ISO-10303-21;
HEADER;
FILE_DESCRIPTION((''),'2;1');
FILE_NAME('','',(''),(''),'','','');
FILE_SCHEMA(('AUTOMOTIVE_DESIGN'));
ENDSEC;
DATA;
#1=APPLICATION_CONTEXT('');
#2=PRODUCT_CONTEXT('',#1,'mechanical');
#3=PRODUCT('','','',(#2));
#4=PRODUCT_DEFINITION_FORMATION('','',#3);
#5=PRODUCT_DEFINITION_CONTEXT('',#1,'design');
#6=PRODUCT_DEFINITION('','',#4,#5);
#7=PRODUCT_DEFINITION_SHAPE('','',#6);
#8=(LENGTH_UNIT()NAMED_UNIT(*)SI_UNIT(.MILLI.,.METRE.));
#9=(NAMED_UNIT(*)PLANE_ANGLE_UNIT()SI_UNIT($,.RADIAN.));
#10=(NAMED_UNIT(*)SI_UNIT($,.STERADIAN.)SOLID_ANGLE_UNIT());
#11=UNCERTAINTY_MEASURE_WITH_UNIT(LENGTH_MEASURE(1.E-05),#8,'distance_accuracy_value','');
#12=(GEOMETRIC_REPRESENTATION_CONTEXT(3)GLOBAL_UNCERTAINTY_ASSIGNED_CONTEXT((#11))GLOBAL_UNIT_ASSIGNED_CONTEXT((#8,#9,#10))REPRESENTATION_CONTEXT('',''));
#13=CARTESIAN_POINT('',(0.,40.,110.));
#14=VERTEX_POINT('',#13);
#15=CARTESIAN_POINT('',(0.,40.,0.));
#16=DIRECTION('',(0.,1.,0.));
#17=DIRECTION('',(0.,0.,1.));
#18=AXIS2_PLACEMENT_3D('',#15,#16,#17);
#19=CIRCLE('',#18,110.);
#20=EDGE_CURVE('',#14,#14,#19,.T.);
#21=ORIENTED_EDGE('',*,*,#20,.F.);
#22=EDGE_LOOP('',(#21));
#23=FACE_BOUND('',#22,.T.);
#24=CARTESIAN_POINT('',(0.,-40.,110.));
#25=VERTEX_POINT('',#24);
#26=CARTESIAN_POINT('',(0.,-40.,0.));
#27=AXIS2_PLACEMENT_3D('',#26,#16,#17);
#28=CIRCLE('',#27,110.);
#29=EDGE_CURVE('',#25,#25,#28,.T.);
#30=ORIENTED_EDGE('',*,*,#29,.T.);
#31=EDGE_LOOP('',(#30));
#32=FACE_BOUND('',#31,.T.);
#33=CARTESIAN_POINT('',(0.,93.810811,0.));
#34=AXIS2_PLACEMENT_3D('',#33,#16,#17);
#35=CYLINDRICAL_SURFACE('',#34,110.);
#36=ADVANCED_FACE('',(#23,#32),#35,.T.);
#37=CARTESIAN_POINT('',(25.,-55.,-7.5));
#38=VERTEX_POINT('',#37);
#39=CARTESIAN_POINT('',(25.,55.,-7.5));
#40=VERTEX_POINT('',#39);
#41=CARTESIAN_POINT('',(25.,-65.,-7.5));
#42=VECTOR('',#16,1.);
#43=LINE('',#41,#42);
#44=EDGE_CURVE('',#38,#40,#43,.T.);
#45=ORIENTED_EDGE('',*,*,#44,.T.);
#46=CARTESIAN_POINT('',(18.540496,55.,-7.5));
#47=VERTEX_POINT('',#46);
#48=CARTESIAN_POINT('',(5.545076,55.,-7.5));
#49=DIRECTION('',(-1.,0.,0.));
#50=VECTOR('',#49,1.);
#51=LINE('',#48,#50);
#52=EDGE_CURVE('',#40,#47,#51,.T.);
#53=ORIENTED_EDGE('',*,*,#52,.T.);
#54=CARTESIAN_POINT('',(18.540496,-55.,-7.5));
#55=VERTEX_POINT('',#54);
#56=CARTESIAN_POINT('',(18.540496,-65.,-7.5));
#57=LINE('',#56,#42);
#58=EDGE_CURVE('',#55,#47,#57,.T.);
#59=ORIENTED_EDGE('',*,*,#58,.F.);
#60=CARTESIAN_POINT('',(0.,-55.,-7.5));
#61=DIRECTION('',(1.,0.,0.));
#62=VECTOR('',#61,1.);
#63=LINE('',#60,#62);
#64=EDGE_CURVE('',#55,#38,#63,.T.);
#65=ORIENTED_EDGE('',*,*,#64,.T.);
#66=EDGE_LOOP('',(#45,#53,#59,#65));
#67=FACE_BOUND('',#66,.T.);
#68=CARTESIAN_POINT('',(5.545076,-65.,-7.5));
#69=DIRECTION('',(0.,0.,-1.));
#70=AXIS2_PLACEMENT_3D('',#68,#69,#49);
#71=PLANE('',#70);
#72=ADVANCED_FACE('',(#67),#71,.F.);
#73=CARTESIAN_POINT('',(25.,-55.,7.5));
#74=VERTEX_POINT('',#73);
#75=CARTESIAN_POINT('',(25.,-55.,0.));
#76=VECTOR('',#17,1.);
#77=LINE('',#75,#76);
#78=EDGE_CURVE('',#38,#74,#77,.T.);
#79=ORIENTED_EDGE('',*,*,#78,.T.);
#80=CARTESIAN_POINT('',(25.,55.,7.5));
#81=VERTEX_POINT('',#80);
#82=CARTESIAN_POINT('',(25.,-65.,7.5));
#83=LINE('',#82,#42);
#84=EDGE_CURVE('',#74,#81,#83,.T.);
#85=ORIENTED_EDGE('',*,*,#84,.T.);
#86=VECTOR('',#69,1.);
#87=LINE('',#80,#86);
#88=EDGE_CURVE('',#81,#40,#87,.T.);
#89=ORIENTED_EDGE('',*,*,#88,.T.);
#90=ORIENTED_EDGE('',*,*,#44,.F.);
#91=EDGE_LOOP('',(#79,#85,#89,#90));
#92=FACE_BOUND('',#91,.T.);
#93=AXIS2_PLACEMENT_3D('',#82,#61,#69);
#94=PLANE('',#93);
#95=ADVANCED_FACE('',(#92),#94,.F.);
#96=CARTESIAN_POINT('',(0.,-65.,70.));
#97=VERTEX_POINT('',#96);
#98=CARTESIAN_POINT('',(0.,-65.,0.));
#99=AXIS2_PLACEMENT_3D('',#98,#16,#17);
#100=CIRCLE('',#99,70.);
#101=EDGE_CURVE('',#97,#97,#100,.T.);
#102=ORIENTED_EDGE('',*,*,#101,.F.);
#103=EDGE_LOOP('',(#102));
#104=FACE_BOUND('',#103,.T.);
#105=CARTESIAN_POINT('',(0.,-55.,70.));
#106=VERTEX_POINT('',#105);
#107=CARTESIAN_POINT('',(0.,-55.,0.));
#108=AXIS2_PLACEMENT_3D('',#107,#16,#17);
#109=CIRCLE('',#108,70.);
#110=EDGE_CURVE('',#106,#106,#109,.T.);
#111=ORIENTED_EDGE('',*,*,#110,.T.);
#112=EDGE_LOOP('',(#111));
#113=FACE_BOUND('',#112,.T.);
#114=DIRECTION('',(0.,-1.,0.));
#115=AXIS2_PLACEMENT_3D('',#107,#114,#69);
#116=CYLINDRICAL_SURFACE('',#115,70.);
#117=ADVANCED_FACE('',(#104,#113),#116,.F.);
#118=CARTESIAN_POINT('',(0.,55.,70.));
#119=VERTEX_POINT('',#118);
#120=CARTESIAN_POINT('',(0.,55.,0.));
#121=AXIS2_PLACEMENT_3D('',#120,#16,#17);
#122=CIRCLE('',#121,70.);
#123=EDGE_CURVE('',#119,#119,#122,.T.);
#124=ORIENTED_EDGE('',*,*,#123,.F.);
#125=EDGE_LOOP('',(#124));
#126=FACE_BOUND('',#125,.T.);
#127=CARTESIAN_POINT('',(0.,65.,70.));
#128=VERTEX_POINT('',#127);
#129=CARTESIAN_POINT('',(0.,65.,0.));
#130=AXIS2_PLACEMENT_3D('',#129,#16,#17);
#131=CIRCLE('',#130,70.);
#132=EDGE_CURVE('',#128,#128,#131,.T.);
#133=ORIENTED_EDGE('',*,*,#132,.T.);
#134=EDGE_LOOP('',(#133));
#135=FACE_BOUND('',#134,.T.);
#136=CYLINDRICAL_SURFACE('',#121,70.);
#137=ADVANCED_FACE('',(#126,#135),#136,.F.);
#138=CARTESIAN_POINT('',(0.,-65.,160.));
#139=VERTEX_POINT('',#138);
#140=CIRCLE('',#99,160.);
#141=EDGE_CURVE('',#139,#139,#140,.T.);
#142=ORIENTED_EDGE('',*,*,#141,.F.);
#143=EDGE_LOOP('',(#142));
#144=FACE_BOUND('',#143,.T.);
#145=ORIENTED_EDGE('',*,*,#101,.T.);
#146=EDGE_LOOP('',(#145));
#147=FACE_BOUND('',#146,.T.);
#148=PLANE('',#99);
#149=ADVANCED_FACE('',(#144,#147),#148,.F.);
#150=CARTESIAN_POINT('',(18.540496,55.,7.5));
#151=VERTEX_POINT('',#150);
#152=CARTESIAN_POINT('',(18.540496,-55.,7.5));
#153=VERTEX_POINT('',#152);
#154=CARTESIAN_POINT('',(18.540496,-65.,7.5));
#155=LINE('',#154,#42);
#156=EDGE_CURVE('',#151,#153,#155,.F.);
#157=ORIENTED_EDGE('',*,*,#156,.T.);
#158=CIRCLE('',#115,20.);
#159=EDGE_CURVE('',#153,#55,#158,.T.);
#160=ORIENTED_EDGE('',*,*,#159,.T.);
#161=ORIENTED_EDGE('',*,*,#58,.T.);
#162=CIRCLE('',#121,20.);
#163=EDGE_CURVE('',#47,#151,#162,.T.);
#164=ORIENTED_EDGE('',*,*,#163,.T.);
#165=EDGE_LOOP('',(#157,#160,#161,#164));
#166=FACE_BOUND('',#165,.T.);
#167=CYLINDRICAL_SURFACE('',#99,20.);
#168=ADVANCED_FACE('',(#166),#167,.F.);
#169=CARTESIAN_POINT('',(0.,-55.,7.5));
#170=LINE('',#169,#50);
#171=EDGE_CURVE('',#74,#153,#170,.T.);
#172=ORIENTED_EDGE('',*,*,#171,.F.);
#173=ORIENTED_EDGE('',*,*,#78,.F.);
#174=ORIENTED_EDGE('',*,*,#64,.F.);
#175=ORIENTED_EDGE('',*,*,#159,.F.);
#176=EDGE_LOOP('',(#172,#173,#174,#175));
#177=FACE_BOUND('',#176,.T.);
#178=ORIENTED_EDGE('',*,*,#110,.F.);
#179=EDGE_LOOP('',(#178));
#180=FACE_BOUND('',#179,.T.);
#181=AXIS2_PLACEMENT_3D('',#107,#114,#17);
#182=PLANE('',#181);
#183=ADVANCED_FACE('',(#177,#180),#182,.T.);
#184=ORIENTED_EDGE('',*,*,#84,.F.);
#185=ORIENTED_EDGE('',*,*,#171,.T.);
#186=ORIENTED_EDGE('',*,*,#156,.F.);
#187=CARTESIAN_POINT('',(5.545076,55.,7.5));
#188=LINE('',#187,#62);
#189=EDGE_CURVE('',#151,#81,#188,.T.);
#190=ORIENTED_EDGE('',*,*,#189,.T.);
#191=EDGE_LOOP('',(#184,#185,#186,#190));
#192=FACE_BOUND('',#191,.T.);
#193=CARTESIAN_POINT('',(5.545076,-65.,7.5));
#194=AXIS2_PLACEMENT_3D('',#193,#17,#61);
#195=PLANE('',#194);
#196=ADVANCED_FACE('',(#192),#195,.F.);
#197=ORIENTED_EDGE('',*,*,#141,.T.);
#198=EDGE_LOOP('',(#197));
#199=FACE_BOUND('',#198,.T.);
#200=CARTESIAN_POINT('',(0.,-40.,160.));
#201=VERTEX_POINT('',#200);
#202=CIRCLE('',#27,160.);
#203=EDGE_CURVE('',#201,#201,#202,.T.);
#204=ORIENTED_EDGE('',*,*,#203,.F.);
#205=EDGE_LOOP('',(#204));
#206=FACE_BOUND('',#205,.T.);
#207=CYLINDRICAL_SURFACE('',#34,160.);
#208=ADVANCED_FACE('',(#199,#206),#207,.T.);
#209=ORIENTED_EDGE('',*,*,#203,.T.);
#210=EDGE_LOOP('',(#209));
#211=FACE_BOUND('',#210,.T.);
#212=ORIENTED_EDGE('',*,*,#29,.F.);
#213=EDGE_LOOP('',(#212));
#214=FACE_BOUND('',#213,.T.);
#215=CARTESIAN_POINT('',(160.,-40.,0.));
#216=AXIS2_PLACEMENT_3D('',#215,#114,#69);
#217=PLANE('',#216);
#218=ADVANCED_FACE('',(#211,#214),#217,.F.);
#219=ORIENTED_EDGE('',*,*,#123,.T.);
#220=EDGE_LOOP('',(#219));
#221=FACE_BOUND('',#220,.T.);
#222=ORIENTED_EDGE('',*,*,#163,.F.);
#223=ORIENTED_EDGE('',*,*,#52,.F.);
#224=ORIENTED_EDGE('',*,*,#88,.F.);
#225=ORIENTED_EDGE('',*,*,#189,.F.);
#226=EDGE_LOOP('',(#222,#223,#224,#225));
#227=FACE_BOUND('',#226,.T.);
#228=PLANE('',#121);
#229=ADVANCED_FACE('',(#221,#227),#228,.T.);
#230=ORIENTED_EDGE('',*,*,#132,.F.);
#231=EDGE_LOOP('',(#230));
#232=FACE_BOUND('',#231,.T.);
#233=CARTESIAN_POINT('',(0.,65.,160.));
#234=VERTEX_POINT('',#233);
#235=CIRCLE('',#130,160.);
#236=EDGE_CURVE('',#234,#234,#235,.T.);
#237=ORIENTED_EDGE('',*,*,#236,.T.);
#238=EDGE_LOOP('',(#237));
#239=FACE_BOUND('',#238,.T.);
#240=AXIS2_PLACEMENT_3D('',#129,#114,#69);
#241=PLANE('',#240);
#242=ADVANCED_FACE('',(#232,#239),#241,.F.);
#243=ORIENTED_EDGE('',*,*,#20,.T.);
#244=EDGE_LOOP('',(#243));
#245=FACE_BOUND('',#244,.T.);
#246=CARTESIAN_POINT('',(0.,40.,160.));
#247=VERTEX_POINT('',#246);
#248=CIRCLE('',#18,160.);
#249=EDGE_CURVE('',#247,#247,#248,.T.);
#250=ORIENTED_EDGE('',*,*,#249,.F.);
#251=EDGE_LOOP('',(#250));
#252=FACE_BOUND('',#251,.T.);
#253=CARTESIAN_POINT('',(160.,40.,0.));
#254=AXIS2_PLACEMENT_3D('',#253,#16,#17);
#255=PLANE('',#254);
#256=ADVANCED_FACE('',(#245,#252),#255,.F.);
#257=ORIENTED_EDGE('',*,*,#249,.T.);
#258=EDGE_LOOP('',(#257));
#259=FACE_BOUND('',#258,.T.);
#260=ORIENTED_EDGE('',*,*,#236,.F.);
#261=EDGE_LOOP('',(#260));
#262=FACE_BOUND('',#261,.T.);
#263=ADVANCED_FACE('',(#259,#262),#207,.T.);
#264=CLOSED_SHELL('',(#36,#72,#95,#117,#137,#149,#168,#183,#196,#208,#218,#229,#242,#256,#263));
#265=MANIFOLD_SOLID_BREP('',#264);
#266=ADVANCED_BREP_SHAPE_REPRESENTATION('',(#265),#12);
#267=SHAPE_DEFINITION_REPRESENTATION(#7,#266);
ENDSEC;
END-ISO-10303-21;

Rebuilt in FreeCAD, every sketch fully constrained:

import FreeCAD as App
import Part
import Sketcher

doc = App.newDocument("Part")
params = doc.addObject("Spreadsheet::Sheet", "Params")
for row, (alias, value) in enumerate([
    ("sketch1_width", "160 mm"),
    ("sketch1_width2", "50 mm"),
    ("sketch1_height", "130 mm"),
    ("sketch1_height2", "25 mm"),
    ("revolution_angle", "360 deg"),
    ("sketch2_diameter", "140 mm"),
    ("pocket1_length", "10 mm"),
    ("sketch3_diameter", "40 mm"),
    ("sketch4_height", "15 mm"),
], start=1):
    params.set(f"A{row}", alias)
    params.set(f"B{row}", "=" + value)
    params.setAlias(f"B{row}", alias)

body = doc.addObject("PartDesign::Body", "Body")

sketch1 = body.newObject("Sketcher::SketchObject", "Sketch")
sketch1.AttachmentSupport = (doc.getObject("XY_Plane"), [""])
sketch1.MapMode = "FlatFace"
sketch1.addGeometry(Part.LineSegment(App.Vector(160, 65, 0), App.Vector(0, 65, 0)), False)
sketch1.addGeometry(Part.LineSegment(App.Vector(0, 65, 0), App.Vector(0, -65, 0)), False)
sketch1.addGeometry(Part.LineSegment(App.Vector(0, -65, 0), App.Vector(160, -65, 0)), False)
sketch1.addGeometry(Part.LineSegment(App.Vector(160, -65, 0), App.Vector(160, -40, 0)), False)
sketch1.addGeometry(Part.LineSegment(App.Vector(160, -40, 0), App.Vector(110, -40, 0)), False)
sketch1.addGeometry(Part.LineSegment(App.Vector(110, -40, 0), App.Vector(110, 40, 0)), False)
sketch1.addGeometry(Part.LineSegment(App.Vector(110, 40, 0), App.Vector(160, 40, 0)), False)
sketch1.addGeometry(Part.LineSegment(App.Vector(160, 40, 0), App.Vector(160, 65, 0)), False)
sketch1.addConstraint(Sketcher.Constraint("Coincident", 0, 2, 1, 1))
sketch1.addConstraint(Sketcher.Constraint("Coincident", 1, 2, 2, 1))
sketch1.addConstraint(Sketcher.Constraint("Coincident", 2, 2, 3, 1))
sketch1.addConstraint(Sketcher.Constraint("Coincident", 3, 2, 4, 1))
sketch1.addConstraint(Sketcher.Constraint("Coincident", 4, 2, 5, 1))
sketch1.addConstraint(Sketcher.Constraint("Coincident", 5, 2, 6, 1))
sketch1.addConstraint(Sketcher.Constraint("Coincident", 6, 2, 7, 1))
sketch1.addConstraint(Sketcher.Constraint("Coincident", 7, 2, 0, 1))
sketch1.addConstraint(Sketcher.Constraint("Horizontal", 0))
sketch1.addConstraint(Sketcher.Constraint("Vertical", 1))
sketch1.addConstraint(Sketcher.Constraint("Horizontal", 2))
sketch1.addConstraint(Sketcher.Constraint("Vertical", 3))
sketch1.addConstraint(Sketcher.Constraint("Horizontal", 4))
sketch1.addConstraint(Sketcher.Constraint("Vertical", 5))
sketch1.addConstraint(Sketcher.Constraint("Horizontal", 6))
sketch1.addConstraint(Sketcher.Constraint("Vertical", 7))
sketch1.addConstraint(Sketcher.Constraint("Symmetric", 0, 2, 1, 2, -1, 1))
sketch1.addConstraint(Sketcher.Constraint("Symmetric", 3, 2, 6, 2, -1))
sketch1.addConstraint(Sketcher.Constraint("DistanceX", 0, 2, 0, 1, 160.0))
sketch1.addConstraint(Sketcher.Constraint("DistanceX", 4, 2, 4, 1, 50.0))
sketch1.addConstraint(Sketcher.Constraint("DistanceY", 1, 2, 1, 1, 130.0))
sketch1.addConstraint(Sketcher.Constraint("DistanceY", 3, 1, 3, 2, 25.0))
sketch1.setExpression("Constraints[18]", "Params.sketch1_width")
sketch1.setExpression("Constraints[19]", "Params.sketch1_width2")
sketch1.setExpression("Constraints[20]", "Params.sketch1_height")
sketch1.setExpression("Constraints[21]", "Params.sketch1_height2")
revolution = body.newObject("PartDesign::Revolution", "Revolution")
revolution.Profile = sketch1
revolution.ReferenceAxis = (sketch1, ["V_Axis"])
revolution.setExpression("Angle", "Params.revolution_angle")

sketch2 = body.newObject("Sketcher::SketchObject", "Sketch001")
sketch2.AttachmentSupport = (doc.getObject("XZ_Plane"), [""])
sketch2.MapMode = "FlatFace"
sketch2.AttachmentOffset = App.Placement(App.Vector(0, 0, -65), App.Rotation())
sketch2.addGeometry(Part.Circle(App.Vector(0, 0, 0), App.Vector(0, 0, 1), 70), False)
sketch2.addConstraint(Sketcher.Constraint("Coincident", 0, 3, -1, 1))
sketch2.addConstraint(Sketcher.Constraint("Diameter", 0, 140.0))
sketch2.setExpression("Constraints[1]", "Params.sketch2_diameter")
pocket1 = body.newObject("PartDesign::Pocket", "Pocket")
pocket1.Profile = sketch2
pocket1.setExpression("Length", "Params.pocket1_length")
pocket1.Reversed = True
doc.recompute()

mirrored = body.newObject("PartDesign::Mirrored", "Mirrored")
mirrored.Originals = [pocket1]
mirrored.MirrorPlane = (doc.getObject("XZ_Plane"), [""])
body.Tip = mirrored

sketch3 = body.newObject("Sketcher::SketchObject", "Sketch002")
sketch3.AttachmentSupport = (doc.getObject("XZ_Plane"), [""])
sketch3.MapMode = "FlatFace"
sketch3.AttachmentOffset = App.Placement(App.Vector(0, 0, -55), App.Rotation())
sketch3.addGeometry(Part.Circle(App.Vector(0, 0, 0), App.Vector(0, 0, 1), 20), False)
sketch3.addConstraint(Sketcher.Constraint("Coincident", 0, 3, -1, 1))
sketch3.addConstraint(Sketcher.Constraint("Diameter", 0, 40.0))
sketch3.setExpression("Constraints[1]", "Params.sketch3_diameter")
pocket2 = body.newObject("PartDesign::Pocket", "Pocket001")
pocket2.Profile = sketch3
pocket2.Type = "ThroughAll"
pocket2.Reversed = True

sketch4 = body.newObject("Sketcher::SketchObject", "Sketch003")
sketch4.AttachmentSupport = (doc.getObject("XZ_Plane"), [""])
sketch4.MapMode = "FlatFace"
sketch4.AttachmentOffset = App.Placement(App.Vector(0, 0, -55), App.Rotation())
sketch4.addGeometry(Part.LineSegment(App.Vector(6, -8, 0), App.Vector(6, 8, 0)), False)
sketch4.addGeometry(Part.LineSegment(App.Vector(6, 8, 0), App.Vector(25, 8, 0)), False)
sketch4.addGeometry(Part.LineSegment(App.Vector(25, 8, 0), App.Vector(25, -8, 0)), False)
sketch4.addGeometry(Part.LineSegment(App.Vector(25, -8, 0), App.Vector(6, -8, 0)), False)
sketch4.addConstraint(Sketcher.Constraint("Coincident", 0, 2, 1, 1))
sketch4.addConstraint(Sketcher.Constraint("Coincident", 1, 2, 2, 1))
sketch4.addConstraint(Sketcher.Constraint("Coincident", 2, 2, 3, 1))
sketch4.addConstraint(Sketcher.Constraint("Coincident", 3, 2, 0, 1))
sketch4.addConstraint(Sketcher.Constraint("Vertical", 0))
sketch4.addConstraint(Sketcher.Constraint("Horizontal", 1))
sketch4.addConstraint(Sketcher.Constraint("Vertical", 2))
sketch4.addConstraint(Sketcher.Constraint("Horizontal", 3))
sketch4.addConstraint(Sketcher.Constraint("DistanceY", 0, 1, 0, 2, 15.0))
sketch4.addConstraint(Sketcher.Constraint("DistanceX", -1, 1, 1, 2, 25.0))
sketch4.addConstraint(Sketcher.Constraint("DistanceY", -1, 1, 0, 2, 7.5))
sketch4.addConstraint(Sketcher.Constraint("DistanceX", 1, 1, 1, 2, 19.454924))
sketch4.setExpression("Constraints[8]", "Params.sketch4_height")
pocket3 = body.newObject("PartDesign::Pocket", "Pocket002")
pocket3.Profile = sketch4
pocket3.Type = "ThroughAll"
pocket3.Reversed = True

doc.recompute()
